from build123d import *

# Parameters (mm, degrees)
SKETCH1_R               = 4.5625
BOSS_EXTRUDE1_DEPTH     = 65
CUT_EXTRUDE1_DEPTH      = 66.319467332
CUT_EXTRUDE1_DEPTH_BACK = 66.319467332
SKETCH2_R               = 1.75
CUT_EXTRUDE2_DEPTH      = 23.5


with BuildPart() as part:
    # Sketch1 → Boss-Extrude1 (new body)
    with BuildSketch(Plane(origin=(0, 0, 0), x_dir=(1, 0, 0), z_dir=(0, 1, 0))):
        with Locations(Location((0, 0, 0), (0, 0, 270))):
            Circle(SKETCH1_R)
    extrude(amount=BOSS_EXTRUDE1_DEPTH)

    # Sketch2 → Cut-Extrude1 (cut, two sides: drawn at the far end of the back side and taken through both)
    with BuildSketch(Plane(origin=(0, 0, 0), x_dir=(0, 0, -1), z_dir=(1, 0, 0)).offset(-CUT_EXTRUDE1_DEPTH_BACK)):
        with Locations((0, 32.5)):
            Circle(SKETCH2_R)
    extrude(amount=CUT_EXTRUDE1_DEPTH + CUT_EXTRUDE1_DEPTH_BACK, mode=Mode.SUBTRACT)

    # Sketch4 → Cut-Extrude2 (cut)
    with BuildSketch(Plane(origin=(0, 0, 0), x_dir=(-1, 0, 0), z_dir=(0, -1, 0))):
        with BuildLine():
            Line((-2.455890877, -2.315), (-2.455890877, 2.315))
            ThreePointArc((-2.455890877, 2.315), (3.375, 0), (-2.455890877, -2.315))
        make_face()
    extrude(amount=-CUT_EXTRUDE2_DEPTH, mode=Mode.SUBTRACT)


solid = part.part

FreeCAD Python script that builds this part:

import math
import FreeCAD as App
import Part
import Sketcher

V = App.Vector
Q = App.Units.Quantity

doc = App.newDocument("Part")
body = doc.addObject("PartDesign::Body", "Body")

sketch1 = body.newObject("Sketcher::SketchObject", "Sketch")
sketch1.AttachmentSupport = (doc.getObject("XZ_Plane"), [""])
sketch1.MapMode = "FlatFace"
sketch1.addGeometry(Part.Circle(V(0, 0, 0), V(0, 0, 1), 4.5625), False)
sketch1.addConstraint(Sketcher.Constraint("Coincident", 0, 3, -1, 1))
sketch1.addConstraint(Sketcher.Constraint("Diameter", 0, Q("9.125 mm")))
pad1 = body.newObject("PartDesign::Pad", "Pad")
pad1.Profile = sketch1
pad1.Length = 65
pad1.Reversed = True

sketch2 = body.newObject("Sketcher::SketchObject", "Sketch001")
sketch2.AttachmentSupport = (doc.getObject("YZ_Plane"), [""])
sketch2.MapMode = "FlatFace"
sketch2.addGeometry(Part.Circle(V(32.5, 0, 0), V(0, 0, 1), 1.75), False)
sketch2.addConstraint(Sketcher.Constraint("PointOnObject", 0, 3, -1))
sketch2.addConstraint(Sketcher.Constraint("Diameter", 0, Q("3.5 mm")))
sketch2.addConstraint(Sketcher.Constraint("DistanceX", -1, 1, 0, 3, Q("32.5 mm")))
pocket1 = body.newObject("PartDesign::Pocket", "Pocket")
pocket1.Profile = sketch2
pocket1.Type = "ThroughAll"
pocket1.Midplane = True

sketch3 = body.newObject("Sketcher::SketchObject", "Sketch002")
sketch3.AttachmentSupport = (doc.getObject("XZ_Plane"), [""])
sketch3.MapMode = "FlatFace"
sketch3.addGeometry(Part.LineSegment(V(2.455891, -2.315, 0), V(2.455891, 2.315, 0)), False)
sketch3.addGeometry(Part.ArcOfCircle(Part.Circle(V(0, 0, 0), V(0, 0, 1), 3.375), math.radians(43.30847), math.radians(316.69153)), False)
sketch3.addConstraint(Sketcher.Constraint("Coincident", 0, 1, 1, 2))
sketch3.addConstraint(Sketcher.Constraint("Coincident", 1, 1, 0, 2))
sketch3.addConstraint(Sketcher.Constraint("Vertical", 0))
sketch3.addConstraint(Sketcher.Constraint("Coincident", 1, 3, -1, 1))
sketch3.addConstraint(Sketcher.Constraint("Radius", 1, Q("3.375 mm")))
sketch3.addConstraint(Sketcher.Constraint("DistanceY", 0, 1, 0, 2, Q("4.63 mm")))
pocket2 = body.newObject("PartDesign::Pocket", "Pocket001")
pocket2.Profile = sketch3
pocket2.Length = 23.5

doc.recompute()
